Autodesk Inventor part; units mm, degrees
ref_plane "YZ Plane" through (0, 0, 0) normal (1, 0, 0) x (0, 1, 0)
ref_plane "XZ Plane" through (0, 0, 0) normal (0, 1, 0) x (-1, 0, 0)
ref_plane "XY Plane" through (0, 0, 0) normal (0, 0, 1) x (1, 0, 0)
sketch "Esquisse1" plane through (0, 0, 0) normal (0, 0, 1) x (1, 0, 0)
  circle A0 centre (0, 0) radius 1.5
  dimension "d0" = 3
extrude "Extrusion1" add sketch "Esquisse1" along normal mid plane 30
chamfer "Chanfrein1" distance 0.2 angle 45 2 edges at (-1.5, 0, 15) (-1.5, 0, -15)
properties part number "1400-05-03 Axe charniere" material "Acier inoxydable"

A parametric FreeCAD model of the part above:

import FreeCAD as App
import Part
import Sketcher

V = App.Vector
Q = App.Units.Quantity


def edges_at(feature, points):
    """Names of the edges that pass closest to the given points."""
    edges = feature.Shape.Edges
    near = lambda p: min(range(len(edges)), key=lambda i: edges[i].distToShape(Part.Vertex(*p))[0])
    return sorted({f"Edge{near(p) + 1}" for p in points})

doc = App.newDocument("Part")
body = doc.addObject("PartDesign::Body", "Body")

# Sketch on XY plane
sketch1 = body.newObject("Sketcher::SketchObject", "Sketch")
sketch1.AttachmentSupport = (doc.getObject("XY_Plane"), [""])
sketch1.MapMode = "FlatFace"
sketch1.addGeometry(Part.Circle(V(0, 0, 0), V(0, 0, 1), 1.5), False)
sketch1.addConstraint(Sketcher.Constraint("Coincident", 0, 3, -1, 1))
sketch1.addConstraint(Sketcher.Constraint("Diameter", 0, Q("3 mm")))
pad1 = body.newObject("PartDesign::Pad", "Pad")
pad1.Profile = sketch1
pad1.Length = 30
pad1.Midplane = True
doc.recompute()

chamfer = body.newObject("PartDesign::Chamfer", "Chamfer")
chamfer.Base = (pad1, edges_at(pad1, [(-1.5, 0, 15), (-1.5, 0, -15)]))
chamfer.Size = 0.2

doc.recompute()
